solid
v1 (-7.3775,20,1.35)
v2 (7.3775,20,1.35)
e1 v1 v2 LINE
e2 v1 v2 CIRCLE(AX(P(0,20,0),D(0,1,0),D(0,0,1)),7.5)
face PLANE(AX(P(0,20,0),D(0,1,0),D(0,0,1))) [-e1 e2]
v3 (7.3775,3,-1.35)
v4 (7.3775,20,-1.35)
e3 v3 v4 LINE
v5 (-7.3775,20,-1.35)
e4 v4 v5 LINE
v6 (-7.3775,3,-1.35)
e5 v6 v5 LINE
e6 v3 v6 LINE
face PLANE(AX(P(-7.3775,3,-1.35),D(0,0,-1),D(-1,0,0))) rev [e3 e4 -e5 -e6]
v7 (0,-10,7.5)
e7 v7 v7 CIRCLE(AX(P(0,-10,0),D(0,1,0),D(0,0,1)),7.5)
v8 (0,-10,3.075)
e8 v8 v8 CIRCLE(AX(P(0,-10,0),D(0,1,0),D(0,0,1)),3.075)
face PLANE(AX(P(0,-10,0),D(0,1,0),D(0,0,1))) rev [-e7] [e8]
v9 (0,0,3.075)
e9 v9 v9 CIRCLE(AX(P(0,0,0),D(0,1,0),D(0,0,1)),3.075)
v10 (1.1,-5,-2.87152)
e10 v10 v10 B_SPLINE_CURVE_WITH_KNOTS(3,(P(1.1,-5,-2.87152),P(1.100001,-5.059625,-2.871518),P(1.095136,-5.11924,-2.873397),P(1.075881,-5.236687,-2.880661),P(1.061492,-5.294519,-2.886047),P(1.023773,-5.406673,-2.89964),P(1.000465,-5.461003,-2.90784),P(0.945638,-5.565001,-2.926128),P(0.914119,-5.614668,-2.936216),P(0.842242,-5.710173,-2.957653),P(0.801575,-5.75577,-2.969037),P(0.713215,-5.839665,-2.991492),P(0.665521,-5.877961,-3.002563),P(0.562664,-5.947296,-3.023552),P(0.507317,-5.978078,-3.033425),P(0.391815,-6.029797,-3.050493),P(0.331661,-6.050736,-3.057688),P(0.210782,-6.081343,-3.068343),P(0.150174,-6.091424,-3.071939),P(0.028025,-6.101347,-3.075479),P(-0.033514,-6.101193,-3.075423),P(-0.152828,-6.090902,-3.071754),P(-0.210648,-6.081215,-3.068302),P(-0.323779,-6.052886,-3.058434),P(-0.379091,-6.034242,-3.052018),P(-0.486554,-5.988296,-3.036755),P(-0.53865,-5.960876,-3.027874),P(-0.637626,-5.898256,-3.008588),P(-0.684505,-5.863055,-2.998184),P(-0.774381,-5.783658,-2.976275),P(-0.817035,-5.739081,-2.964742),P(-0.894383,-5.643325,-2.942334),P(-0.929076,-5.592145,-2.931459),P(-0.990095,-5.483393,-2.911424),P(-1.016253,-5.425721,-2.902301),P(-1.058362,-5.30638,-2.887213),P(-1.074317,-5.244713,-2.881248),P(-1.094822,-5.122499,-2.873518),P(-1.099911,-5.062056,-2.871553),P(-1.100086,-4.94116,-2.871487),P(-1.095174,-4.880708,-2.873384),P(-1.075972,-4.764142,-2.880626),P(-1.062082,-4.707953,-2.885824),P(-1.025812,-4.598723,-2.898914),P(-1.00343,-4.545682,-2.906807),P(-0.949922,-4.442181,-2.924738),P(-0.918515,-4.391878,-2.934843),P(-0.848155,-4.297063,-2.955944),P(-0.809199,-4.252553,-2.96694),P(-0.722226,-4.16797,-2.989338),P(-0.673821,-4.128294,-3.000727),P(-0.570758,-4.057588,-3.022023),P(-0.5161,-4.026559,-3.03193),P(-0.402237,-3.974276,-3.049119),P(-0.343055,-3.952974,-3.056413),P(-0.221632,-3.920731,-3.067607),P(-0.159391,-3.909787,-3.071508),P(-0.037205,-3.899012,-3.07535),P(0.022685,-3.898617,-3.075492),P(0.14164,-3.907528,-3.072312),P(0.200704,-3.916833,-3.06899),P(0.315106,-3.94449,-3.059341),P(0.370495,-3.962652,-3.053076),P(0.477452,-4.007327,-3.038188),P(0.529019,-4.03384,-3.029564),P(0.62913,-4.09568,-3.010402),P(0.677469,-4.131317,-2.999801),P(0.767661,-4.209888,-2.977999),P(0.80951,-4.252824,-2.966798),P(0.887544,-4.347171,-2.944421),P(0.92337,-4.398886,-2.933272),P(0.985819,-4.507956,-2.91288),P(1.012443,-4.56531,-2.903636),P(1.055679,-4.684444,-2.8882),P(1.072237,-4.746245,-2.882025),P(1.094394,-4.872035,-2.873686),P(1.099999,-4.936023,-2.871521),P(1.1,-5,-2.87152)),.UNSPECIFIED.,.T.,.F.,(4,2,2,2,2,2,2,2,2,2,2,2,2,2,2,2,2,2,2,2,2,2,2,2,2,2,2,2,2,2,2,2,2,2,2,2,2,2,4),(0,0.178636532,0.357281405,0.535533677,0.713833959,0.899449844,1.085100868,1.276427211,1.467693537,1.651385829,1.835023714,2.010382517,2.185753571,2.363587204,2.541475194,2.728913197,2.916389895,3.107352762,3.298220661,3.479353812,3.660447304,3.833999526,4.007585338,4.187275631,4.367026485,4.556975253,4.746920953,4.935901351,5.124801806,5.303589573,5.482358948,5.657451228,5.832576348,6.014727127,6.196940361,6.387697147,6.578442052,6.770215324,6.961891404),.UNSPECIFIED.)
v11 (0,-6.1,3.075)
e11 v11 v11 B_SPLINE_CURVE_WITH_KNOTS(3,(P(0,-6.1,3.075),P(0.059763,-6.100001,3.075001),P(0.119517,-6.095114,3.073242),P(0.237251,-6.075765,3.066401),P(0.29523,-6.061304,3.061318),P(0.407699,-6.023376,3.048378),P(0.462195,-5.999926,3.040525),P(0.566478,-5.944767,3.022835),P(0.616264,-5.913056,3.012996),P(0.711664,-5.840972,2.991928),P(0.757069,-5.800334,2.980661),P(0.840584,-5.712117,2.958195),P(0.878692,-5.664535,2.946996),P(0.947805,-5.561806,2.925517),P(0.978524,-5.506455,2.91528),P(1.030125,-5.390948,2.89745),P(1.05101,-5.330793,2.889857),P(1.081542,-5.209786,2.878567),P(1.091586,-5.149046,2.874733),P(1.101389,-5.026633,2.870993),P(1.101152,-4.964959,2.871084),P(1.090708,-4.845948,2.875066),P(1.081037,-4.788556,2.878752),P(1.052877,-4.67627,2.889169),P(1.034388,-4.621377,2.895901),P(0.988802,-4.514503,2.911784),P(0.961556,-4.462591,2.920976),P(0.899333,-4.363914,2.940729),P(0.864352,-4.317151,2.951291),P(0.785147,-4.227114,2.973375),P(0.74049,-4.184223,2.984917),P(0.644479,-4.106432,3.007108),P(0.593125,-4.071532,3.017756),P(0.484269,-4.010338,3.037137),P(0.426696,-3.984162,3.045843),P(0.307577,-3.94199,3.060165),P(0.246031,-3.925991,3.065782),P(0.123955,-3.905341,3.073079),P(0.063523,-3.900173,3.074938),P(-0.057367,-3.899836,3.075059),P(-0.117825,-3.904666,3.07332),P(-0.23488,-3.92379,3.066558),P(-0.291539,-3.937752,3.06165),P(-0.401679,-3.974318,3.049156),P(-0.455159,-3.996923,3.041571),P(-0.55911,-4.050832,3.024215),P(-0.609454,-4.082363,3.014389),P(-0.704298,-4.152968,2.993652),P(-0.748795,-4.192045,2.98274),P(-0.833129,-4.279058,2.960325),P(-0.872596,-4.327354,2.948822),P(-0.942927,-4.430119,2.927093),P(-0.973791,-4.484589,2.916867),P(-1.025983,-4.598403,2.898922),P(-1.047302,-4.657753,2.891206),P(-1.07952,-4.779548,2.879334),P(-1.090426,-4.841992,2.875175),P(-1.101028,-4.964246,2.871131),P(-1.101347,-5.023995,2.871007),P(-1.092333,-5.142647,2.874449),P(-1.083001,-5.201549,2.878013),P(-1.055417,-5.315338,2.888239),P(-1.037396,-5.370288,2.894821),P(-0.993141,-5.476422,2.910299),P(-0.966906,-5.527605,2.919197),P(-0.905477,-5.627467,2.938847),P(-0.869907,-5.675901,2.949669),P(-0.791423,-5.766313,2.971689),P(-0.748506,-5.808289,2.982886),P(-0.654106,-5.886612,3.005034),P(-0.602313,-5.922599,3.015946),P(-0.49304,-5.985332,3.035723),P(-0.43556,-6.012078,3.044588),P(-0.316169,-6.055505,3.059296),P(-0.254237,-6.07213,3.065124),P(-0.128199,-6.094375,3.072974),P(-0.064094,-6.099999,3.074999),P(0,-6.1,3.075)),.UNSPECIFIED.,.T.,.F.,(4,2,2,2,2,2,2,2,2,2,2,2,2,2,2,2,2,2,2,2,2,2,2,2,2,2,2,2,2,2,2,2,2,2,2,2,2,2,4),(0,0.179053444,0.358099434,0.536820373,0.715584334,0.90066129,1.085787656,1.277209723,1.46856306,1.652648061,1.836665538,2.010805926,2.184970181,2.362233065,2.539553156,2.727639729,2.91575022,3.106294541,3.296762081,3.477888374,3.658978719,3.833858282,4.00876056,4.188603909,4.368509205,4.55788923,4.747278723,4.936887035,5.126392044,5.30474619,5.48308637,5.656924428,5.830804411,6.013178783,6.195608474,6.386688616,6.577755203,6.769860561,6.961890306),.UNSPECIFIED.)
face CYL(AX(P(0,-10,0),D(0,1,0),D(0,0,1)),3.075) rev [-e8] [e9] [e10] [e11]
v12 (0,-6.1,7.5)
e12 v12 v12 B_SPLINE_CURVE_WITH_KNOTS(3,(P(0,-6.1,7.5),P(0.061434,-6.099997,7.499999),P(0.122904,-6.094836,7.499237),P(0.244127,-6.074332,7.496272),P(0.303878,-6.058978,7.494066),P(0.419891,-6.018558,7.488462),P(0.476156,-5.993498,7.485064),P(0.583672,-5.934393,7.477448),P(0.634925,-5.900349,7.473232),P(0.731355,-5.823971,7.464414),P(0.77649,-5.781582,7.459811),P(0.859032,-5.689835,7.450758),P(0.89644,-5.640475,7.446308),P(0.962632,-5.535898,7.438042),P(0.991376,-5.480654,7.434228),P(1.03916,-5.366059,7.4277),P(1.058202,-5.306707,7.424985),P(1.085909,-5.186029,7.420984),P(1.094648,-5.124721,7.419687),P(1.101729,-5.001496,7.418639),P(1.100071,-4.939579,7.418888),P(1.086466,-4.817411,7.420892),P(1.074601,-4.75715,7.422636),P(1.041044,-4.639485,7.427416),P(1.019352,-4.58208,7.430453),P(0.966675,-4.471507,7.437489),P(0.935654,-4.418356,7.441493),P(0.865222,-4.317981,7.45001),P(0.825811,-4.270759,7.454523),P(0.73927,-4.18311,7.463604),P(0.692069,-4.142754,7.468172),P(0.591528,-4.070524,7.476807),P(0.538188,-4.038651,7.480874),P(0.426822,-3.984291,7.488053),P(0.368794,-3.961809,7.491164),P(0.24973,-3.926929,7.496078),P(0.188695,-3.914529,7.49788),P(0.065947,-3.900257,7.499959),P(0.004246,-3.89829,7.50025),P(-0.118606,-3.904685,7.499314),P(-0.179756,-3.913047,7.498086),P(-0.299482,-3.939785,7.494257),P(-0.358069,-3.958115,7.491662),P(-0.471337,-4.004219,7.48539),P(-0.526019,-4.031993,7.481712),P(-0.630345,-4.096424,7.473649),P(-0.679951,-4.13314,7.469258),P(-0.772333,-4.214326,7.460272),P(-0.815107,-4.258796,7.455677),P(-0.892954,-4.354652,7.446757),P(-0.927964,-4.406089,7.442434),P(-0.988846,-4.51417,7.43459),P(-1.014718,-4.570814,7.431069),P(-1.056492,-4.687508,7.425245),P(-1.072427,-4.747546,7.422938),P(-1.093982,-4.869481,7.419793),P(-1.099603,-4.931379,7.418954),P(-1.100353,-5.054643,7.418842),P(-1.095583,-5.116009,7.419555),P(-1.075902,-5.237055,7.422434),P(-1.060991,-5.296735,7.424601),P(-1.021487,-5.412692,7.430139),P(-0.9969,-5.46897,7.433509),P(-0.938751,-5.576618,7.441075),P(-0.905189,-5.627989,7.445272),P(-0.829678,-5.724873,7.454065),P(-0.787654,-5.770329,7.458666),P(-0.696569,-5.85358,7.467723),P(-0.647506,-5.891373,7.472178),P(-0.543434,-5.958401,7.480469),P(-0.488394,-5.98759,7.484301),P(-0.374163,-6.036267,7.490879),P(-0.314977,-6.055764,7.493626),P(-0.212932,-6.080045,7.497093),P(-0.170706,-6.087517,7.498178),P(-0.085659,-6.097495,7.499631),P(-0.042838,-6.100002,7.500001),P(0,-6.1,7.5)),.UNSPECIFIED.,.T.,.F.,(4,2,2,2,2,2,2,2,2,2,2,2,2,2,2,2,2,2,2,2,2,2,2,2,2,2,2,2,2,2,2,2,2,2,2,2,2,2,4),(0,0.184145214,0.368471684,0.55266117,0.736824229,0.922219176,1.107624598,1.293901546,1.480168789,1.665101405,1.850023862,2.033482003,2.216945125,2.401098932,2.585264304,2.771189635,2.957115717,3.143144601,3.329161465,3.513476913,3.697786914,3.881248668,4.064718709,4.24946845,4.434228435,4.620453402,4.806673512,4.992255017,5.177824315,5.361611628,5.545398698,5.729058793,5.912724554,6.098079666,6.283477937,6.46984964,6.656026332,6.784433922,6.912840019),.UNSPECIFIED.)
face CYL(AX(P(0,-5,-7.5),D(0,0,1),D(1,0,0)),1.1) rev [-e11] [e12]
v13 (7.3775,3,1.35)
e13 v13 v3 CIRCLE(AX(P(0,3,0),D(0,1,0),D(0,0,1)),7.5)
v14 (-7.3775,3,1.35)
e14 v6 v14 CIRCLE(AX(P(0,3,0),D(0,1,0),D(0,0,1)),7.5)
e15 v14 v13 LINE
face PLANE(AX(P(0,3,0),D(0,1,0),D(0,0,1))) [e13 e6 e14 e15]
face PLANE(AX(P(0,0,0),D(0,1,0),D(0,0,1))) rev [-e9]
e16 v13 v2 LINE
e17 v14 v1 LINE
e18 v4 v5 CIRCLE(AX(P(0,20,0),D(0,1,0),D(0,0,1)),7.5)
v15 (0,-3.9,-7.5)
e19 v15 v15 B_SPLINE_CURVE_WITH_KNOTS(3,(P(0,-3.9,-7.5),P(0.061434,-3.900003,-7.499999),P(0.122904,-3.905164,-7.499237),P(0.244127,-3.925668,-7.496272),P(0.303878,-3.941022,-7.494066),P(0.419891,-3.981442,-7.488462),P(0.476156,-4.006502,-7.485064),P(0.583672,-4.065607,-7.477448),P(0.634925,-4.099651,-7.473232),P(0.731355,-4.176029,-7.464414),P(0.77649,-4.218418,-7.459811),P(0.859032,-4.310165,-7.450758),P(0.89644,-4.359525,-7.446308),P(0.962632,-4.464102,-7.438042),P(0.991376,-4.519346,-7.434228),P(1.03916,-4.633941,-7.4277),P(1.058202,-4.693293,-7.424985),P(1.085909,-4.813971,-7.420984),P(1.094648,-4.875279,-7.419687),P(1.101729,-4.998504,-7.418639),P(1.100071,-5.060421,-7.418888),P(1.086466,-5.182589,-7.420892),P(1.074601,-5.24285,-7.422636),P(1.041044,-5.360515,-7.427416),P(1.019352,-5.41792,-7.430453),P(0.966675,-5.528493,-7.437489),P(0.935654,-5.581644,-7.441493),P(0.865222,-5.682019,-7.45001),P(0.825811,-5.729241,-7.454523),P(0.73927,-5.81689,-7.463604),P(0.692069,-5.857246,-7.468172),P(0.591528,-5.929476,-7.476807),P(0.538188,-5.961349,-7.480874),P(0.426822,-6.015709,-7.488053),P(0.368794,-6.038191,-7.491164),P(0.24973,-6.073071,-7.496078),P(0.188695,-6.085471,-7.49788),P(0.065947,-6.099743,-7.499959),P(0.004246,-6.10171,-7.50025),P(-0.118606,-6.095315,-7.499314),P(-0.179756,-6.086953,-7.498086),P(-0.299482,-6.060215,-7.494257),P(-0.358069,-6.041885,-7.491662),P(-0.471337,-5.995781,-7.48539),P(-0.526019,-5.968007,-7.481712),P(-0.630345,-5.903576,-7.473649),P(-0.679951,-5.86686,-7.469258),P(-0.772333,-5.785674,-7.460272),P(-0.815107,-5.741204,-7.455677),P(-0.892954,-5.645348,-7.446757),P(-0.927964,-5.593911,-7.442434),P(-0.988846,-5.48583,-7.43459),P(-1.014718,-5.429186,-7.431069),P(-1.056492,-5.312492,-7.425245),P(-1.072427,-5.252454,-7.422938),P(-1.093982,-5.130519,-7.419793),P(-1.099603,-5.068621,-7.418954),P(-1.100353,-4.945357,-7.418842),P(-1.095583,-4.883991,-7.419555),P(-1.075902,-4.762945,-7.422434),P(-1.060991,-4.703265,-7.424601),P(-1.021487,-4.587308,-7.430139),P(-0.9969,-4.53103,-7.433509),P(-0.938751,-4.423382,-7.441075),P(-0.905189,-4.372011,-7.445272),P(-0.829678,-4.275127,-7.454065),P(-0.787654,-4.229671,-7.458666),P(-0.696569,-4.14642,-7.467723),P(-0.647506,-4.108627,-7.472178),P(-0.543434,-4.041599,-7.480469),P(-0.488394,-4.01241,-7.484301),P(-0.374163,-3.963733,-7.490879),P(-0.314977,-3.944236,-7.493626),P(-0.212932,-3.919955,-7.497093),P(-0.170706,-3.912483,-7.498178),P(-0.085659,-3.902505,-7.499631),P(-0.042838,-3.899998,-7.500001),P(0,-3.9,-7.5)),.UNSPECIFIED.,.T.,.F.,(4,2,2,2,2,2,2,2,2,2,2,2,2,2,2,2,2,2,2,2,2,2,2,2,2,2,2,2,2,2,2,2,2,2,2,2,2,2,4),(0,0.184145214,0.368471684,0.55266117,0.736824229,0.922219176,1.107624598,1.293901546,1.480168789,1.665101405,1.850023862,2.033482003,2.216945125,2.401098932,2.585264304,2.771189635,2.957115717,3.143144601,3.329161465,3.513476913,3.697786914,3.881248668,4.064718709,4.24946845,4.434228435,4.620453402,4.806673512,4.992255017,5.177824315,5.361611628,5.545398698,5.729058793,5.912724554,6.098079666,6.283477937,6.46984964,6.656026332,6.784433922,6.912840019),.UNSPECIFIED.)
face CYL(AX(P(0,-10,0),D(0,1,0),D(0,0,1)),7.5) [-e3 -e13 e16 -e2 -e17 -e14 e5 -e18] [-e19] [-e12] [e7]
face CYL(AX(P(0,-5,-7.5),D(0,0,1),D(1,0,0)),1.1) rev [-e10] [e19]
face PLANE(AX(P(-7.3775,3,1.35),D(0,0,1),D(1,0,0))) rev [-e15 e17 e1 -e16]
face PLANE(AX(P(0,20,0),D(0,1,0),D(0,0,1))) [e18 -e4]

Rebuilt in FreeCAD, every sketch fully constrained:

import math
import FreeCAD as App
import Part
import Sketcher

V = App.Vector

doc = App.newDocument("Part")
body = doc.addObject("PartDesign::Body", "Body")

sketch1 = body.newObject("Sketcher::SketchObject", "Sketch")
sketch1.AttachmentSupport = (doc.getObject("XZ_Plane"), [""])
sketch1.MapMode = "FlatFace"
sketch1.addGeometry(Part.Circle(V(0, 0, 0), V(0, 0, 1), 7.5), False)
sketch1.addGeometry(Part.Circle(V(0, 0, 0), V(0, 0, 1), 3.1), False)
sketch1.addConstraint(Sketcher.Constraint("Coincident", 0, 3, -1, 1))
sketch1.addConstraint(Sketcher.Constraint("Coincident", 1, 3, -1, 1))
sketch1.addConstraint(Sketcher.Constraint("Diameter", 0, 15.0))
sketch1.addConstraint(Sketcher.Constraint("Diameter", 1, 6.15))
pad1 = body.newObject("PartDesign::Pad", "Pad")
pad1.Profile = sketch1
pad1.Length = 10

sketch2 = body.newObject("Sketcher::SketchObject", "Sketch001")
sketch2.AttachmentSupport = (doc.getObject("XZ_Plane"), [""])
sketch2.MapMode = "FlatFace"
sketch2.AttachmentOffset = App.Placement(V(0, 0, -20), App.Rotation())
sketch2.addGeometry(Part.Circle(V(0, 0, 0), V(0, 0, 1), 8), False)
sketch2.addConstraint(Sketcher.Constraint("Coincident", 0, 3, -1, 1))
sketch2.addConstraint(Sketcher.Constraint("Diameter", 0, 15.0))
pad2 = body.newObject("PartDesign::Pad", "Pad001")
pad2.Profile = sketch2
pad2.Length = 20

sketch3 = body.newObject("Sketcher::SketchObject", "Sketch002")
sketch3.AttachmentSupport = (doc.getObject("XZ_Plane"), [""])
sketch3.MapMode = "FlatFace"
sketch3.AttachmentOffset = App.Placement(V(0, 0, -20), App.Rotation())
sketch3.addGeometry(Part.LineSegment(V(7.4, -1.4, 0), V(-7.4, -1.4, 0)), False)
sketch3.addGeometry(Part.ArcOfCircle(Part.Circle(V(0, 0, 0), V(0, 0, 1), 7.5), math.radians(170), math.radians(190)), False)
sketch3.addGeometry(Part.LineSegment(V(-7.4, 1.4, 0), V(7.4, 1.4, 0)), False)
sketch3.addGeometry(Part.ArcOfCircle(Part.Circle(V(0, 0, 0), V(0, 0, 1), 7.5), math.radians(-10), math.radians(10)), False)
sketch3.addConstraint(Sketcher.Constraint("Coincident", 0, 2, 1, 2))
sketch3.addConstraint(Sketcher.Constraint("Coincident", 1, 1, 2, 1))
sketch3.addConstraint(Sketcher.Constraint("Coincident", 2, 2, 3, 2))
sketch3.addConstraint(Sketcher.Constraint("Coincident", 3, 1, 0, 1))
sketch3.addConstraint(Sketcher.Constraint("Horizontal", 0))
sketch3.addConstraint(Sketcher.Constraint("Horizontal", 2))
sketch3.addConstraint(Sketcher.Constraint("Coincident", 1, 3, -1, 1))
sketch3.addConstraint(Sketcher.Constraint("Coincident", 3, 3, -1, 1))
sketch3.addConstraint(Sketcher.Constraint("Equal", 1, 3))
sketch3.addConstraint(Sketcher.Constraint("Vertical", 0, 2, 1, 1))
sketch3.addConstraint(Sketcher.Constraint("Radius", 1, 7.5))
sketch3.addConstraint(Sketcher.Constraint("DistanceY", 0, 2, 1, 1, 2.7))
pocket1 = body.newObject("PartDesign::Pocket", "Pocket")
pocket1.Profile = sketch3
pocket1.Length = 17
pocket1.Reversed = True

sketch4 = body.newObject("Sketcher::SketchObject", "Sketch003")
sketch4.AttachmentSupport = (doc.getObject("XY_Plane"), [""])
sketch4.MapMode = "FlatFace"
sketch4.addGeometry(Part.Circle(V(0, -5, 0), V(0, 0, 1), 1.1), False)
sketch4.addConstraint(Sketcher.Constraint("PointOnObject", 0, 3, -2))
sketch4.addConstraint(Sketcher.Constraint("Diameter", 0, 2.2))
sketch4.addConstraint(Sketcher.Constraint("DistanceY", 0, 3, -1, 1, 5.0))
pocket2 = body.newObject("PartDesign::Pocket", "Pocket001")
pocket2.Profile = sketch4
pocket2.Type = "ThroughAll"
pocket2.Midplane = True

doc.recompute()
